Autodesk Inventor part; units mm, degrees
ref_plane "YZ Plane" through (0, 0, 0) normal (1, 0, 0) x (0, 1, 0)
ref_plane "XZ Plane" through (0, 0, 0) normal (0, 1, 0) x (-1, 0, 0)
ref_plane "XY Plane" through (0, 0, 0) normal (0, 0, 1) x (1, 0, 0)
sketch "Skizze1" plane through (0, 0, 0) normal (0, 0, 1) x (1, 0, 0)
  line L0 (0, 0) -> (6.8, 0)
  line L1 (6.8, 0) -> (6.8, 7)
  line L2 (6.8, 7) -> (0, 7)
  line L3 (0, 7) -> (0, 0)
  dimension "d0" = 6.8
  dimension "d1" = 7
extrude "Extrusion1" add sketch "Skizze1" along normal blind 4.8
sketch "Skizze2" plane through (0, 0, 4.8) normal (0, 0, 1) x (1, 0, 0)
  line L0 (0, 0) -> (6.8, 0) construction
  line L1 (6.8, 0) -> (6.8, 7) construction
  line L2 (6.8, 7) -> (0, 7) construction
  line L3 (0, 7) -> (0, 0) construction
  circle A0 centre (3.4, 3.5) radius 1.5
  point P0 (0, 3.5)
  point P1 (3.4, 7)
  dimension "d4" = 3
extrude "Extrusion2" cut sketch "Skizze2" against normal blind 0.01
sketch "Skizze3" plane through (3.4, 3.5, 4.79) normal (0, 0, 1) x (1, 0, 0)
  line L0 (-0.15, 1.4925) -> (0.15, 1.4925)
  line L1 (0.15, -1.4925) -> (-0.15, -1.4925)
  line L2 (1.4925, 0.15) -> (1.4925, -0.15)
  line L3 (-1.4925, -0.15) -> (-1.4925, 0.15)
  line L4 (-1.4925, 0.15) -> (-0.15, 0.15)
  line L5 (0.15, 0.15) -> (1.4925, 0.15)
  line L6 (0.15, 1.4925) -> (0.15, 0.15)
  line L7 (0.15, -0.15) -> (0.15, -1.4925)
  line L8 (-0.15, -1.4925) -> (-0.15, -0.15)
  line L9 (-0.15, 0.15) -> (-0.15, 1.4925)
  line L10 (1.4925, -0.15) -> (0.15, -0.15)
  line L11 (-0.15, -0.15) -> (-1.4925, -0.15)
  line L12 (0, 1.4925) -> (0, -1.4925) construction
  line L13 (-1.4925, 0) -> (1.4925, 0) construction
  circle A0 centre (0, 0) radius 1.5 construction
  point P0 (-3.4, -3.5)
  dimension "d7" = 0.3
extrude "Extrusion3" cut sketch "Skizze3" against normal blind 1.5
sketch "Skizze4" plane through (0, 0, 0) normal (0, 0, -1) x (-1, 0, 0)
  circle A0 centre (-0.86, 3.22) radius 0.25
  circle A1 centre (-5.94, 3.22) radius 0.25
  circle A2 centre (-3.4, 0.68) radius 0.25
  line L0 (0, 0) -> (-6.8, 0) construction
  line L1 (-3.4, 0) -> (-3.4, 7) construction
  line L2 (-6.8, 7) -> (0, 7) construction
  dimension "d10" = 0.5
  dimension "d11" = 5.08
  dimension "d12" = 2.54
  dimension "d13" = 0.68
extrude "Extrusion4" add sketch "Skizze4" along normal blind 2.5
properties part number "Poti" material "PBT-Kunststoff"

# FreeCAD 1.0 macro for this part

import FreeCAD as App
import Part
import Sketcher
Q = App.Units.Quantity

doc = App.newDocument("Part")
body = doc.addObject("PartDesign::Body", "Body")

# Sketch on XY plane
sketch1 = doc.addObject("Sketcher::SketchObject", "Sketch")
body.addObject(sketch1)
sketch1.AttachmentSupport = (doc.XY_Plane, [""])
sketch1.MapMode = "FlatFace"
sketch1.addGeometry([
    Part.LineSegment(App.Vector(0, 7, 0), App.Vector(0, 0, 0)),
    Part.LineSegment(App.Vector(0, 0, 0), App.Vector(7, 0, 0)),
    Part.LineSegment(App.Vector(7, 0, 0), App.Vector(7, 7, 0)),
    Part.LineSegment(App.Vector(7, 7, 0), App.Vector(0, 7, 0)),
], False)
sketch1.addConstraint([
    Sketcher.Constraint("Coincident", 0, 2, 1, 1),
    Sketcher.Constraint("Coincident", 1, 2, 2, 1),
    Sketcher.Constraint("Coincident", 2, 2, 3, 1),
    Sketcher.Constraint("Coincident", 3, 2, 0, 1),
    Sketcher.Constraint("Vertical", 0),
    Sketcher.Constraint("Horizontal", 1),
    Sketcher.Constraint("Vertical", 2),
    Sketcher.Constraint("Horizontal", 3),
    Sketcher.Constraint("Coincident", 0, 2, -1, 1),
    Sketcher.Constraint("DistanceY", 0, 2, 0, 1, Q("7 mm")),
    Sketcher.Constraint("DistanceX", 1, 1, 1, 2, Q("6.8 mm")),
])
pad1 = doc.addObject("PartDesign::Pad", "Pad")
body.addObject(pad1)
pad1.Profile = sketch1
pad1.Length = 4.8

# Sketch on XY plane
sketch2 = doc.addObject("Sketcher::SketchObject", "Sketch001")
body.addObject(sketch2)
sketch2.AttachmentSupport = (doc.XY_Plane, [""])
sketch2.MapMode = "FlatFace"
sketch2.AttachmentOffset = App.Placement(App.Vector(0, 0, 4.8), App.Rotation())
sketch2.addGeometry(Part.Circle(App.Vector(3.4, 3.5, 0), App.Vector(0, 0, 1), 1.5), False)
sketch2.addConstraint([
    Sketcher.Constraint("Diameter", 0, Q("3 mm")),
    Sketcher.Constraint("DistanceX", -1, 1, 0, 3, Q("3.4 mm")),
    Sketcher.Constraint("DistanceY", -1, 1, 0, 3, Q("3.5 mm")),
])
pocket1 = doc.addObject("PartDesign::Pocket", "Pocket")
body.addObject(pocket1)
pocket1.Profile = sketch2
pocket1.Length = 0.01

# Sketch on XY plane
sketch3 = doc.addObject("Sketcher::SketchObject", "Sketch002")
body.addObject(sketch3)
sketch3.AttachmentSupport = (doc.XY_Plane, [""])
sketch3.MapMode = "FlatFace"
sketch3.AttachmentOffset = App.Placement(App.Vector(0, 0, 4.79), App.Rotation())
sketch3.addGeometry([
    Part.LineSegment(App.Vector(3.55, 4.99, 0), App.Vector(3.25, 4.99, 0)),  # 0
    Part.LineSegment(App.Vector(3.25, 4.99, 0), App.Vector(3.25, 3.65, 0)),  # 1
    Part.LineSegment(App.Vector(3.25, 3.65, 0), App.Vector(1.91, 3.65, 0)),  # 2
    Part.LineSegment(App.Vector(1.91, 3.65, 0), App.Vector(1.91, 3.35, 0)),  # 3
    Part.LineSegment(App.Vector(1.91, 3.35, 0), App.Vector(3.25, 3.35, 0)),  # 4
    Part.LineSegment(App.Vector(3.25, 3.35, 0), App.Vector(3.25, 2.01, 0)),  # 5
    Part.LineSegment(App.Vector(3.25, 2.01, 0), App.Vector(3.55, 2.01, 0)),  # 6
    Part.LineSegment(App.Vector(3.55, 2.01, 0), App.Vector(3.55, 3.35, 0)),  # 7
    Part.LineSegment(App.Vector(3.55, 3.35, 0), App.Vector(4.89, 3.35, 0)),  # 8
    Part.LineSegment(App.Vector(4.89, 3.35, 0), App.Vector(4.89, 3.65, 0)),  # 9
    Part.LineSegment(App.Vector(4.89, 3.65, 0), App.Vector(3.55, 3.65, 0)),  # 10
    Part.LineSegment(App.Vector(3.55, 3.65, 0), App.Vector(3.55, 4.99, 0)),  # 11
], False)
sketch3.addConstraint([
    Sketcher.Constraint("Coincident", 0, 2, 1, 1),
    Sketcher.Constraint("Coincident", 1, 2, 2, 1),
    Sketcher.Constraint("Coincident", 2, 2, 3, 1),
    Sketcher.Constraint("Coincident", 3, 2, 4, 1),
    Sketcher.Constraint("Coincident", 4, 2, 5, 1),
    Sketcher.Constraint("Coincident", 5, 2, 6, 1),
    Sketcher.Constraint("Coincident", 6, 2, 7, 1),
    Sketcher.Constraint("Coincident", 7, 2, 8, 1),
    Sketcher.Constraint("Coincident", 8, 2, 9, 1),
    Sketcher.Constraint("Coincident", 9, 2, 10, 1),
    Sketcher.Constraint("Coincident", 10, 2, 11, 1),
    Sketcher.Constraint("Coincident", 11, 2, 0, 1),
    Sketcher.Constraint("Horizontal", 0),
    Sketcher.Constraint("Vertical", 1),
    Sketcher.Constraint("Horizontal", 2),
    Sketcher.Constraint("Vertical", 3),
    Sketcher.Constraint("Horizontal", 4),
    Sketcher.Constraint("Vertical", 5),
    Sketcher.Constraint("Horizontal", 6),
    Sketcher.Constraint("Vertical", 7),
    Sketcher.Constraint("Horizontal", 8),
    Sketcher.Constraint("Vertical", 9),
    Sketcher.Constraint("Horizontal", 10),
    Sketcher.Constraint("Vertical", 11),
    Sketcher.Constraint("Horizontal", 4, 2, 7, 2),
    Sketcher.Constraint("Horizontal", 2, 2, 9, 2),
    Sketcher.Constraint("Vertical", 1, 2, 4, 2),
    Sketcher.Constraint("Vertical", 7, 2, 10, 2),
    Sketcher.Constraint("Equal", 4, 8),
    Sketcher.Constraint("Equal", 10, 1),
    Sketcher.Constraint("Equal", 6, 3),
    Sketcher.Constraint("Equal", 1, 5),
    Sketcher.Constraint("DistanceX", 0, 2, 0, 1, Q("0.3 mm")),
    Sketcher.Constraint("DistanceX", -1, 1, 0, 2, Q("3.25 mm")),
    Sketcher.Constraint("DistanceY", -1, 1, 1, 2, Q("3.65 mm")),
    Sketcher.Constraint("DistanceX", 2, 2, 2, 1, Q("1.3425 mm")),
])
pocket2 = doc.addObject("PartDesign::Pocket", "Pocket001")
body.addObject(pocket2)
pocket2.Profile = sketch3
pocket2.Length = 1.5

# Sketch on XY plane
sketch4 = doc.addObject("Sketcher::SketchObject", "Sketch003")
body.addObject(sketch4)
sketch4.AttachmentSupport = (doc.XY_Plane, [""])
sketch4.MapMode = "FlatFace"
sketch4.addGeometry([
    Part.Circle(App.Vector(0.86, 3.22, 0), App.Vector(0, 0, 1), 0.25),
    Part.Circle(App.Vector(5.94, 3.22, 0), App.Vector(0, 0, 1), 0.25),
    Part.Circle(App.Vector(3.4, 0.68, 0), App.Vector(0, 0, 1), 0.25),
], False)
sketch4.addConstraint([
    Sketcher.Constraint("Equal", 0, 1),
    Sketcher.Constraint("Equal", 1, 2),
    Sketcher.Constraint("Horizontal", 0, 3, 1, 3),
    Sketcher.Constraint("Diameter", 0, Q("0.5 mm")),
    Sketcher.Constraint("DistanceY", -1, 1, 2, 3, Q("0.68 mm")),
    Sketcher.Constraint("DistanceX", 0, 3, 1, 3, Q("5.08 mm")),
    Sketcher.Constraint("DistanceX", 0, 3, 2, 3, Q("2.54 mm")),
    Sketcher.Constraint("DistanceY", 2, 3, 0, 3, Q("2.54 mm")),
    Sketcher.Constraint("DistanceX", -1, 1, 2, 3, Q("3.4 mm")),
])
pad2 = doc.addObject("PartDesign::Pad", "Pad001")
body.addObject(pad2)
pad2.Profile = sketch4
pad2.Length = 2.5
pad2.Reversed = True

doc.recompute()
